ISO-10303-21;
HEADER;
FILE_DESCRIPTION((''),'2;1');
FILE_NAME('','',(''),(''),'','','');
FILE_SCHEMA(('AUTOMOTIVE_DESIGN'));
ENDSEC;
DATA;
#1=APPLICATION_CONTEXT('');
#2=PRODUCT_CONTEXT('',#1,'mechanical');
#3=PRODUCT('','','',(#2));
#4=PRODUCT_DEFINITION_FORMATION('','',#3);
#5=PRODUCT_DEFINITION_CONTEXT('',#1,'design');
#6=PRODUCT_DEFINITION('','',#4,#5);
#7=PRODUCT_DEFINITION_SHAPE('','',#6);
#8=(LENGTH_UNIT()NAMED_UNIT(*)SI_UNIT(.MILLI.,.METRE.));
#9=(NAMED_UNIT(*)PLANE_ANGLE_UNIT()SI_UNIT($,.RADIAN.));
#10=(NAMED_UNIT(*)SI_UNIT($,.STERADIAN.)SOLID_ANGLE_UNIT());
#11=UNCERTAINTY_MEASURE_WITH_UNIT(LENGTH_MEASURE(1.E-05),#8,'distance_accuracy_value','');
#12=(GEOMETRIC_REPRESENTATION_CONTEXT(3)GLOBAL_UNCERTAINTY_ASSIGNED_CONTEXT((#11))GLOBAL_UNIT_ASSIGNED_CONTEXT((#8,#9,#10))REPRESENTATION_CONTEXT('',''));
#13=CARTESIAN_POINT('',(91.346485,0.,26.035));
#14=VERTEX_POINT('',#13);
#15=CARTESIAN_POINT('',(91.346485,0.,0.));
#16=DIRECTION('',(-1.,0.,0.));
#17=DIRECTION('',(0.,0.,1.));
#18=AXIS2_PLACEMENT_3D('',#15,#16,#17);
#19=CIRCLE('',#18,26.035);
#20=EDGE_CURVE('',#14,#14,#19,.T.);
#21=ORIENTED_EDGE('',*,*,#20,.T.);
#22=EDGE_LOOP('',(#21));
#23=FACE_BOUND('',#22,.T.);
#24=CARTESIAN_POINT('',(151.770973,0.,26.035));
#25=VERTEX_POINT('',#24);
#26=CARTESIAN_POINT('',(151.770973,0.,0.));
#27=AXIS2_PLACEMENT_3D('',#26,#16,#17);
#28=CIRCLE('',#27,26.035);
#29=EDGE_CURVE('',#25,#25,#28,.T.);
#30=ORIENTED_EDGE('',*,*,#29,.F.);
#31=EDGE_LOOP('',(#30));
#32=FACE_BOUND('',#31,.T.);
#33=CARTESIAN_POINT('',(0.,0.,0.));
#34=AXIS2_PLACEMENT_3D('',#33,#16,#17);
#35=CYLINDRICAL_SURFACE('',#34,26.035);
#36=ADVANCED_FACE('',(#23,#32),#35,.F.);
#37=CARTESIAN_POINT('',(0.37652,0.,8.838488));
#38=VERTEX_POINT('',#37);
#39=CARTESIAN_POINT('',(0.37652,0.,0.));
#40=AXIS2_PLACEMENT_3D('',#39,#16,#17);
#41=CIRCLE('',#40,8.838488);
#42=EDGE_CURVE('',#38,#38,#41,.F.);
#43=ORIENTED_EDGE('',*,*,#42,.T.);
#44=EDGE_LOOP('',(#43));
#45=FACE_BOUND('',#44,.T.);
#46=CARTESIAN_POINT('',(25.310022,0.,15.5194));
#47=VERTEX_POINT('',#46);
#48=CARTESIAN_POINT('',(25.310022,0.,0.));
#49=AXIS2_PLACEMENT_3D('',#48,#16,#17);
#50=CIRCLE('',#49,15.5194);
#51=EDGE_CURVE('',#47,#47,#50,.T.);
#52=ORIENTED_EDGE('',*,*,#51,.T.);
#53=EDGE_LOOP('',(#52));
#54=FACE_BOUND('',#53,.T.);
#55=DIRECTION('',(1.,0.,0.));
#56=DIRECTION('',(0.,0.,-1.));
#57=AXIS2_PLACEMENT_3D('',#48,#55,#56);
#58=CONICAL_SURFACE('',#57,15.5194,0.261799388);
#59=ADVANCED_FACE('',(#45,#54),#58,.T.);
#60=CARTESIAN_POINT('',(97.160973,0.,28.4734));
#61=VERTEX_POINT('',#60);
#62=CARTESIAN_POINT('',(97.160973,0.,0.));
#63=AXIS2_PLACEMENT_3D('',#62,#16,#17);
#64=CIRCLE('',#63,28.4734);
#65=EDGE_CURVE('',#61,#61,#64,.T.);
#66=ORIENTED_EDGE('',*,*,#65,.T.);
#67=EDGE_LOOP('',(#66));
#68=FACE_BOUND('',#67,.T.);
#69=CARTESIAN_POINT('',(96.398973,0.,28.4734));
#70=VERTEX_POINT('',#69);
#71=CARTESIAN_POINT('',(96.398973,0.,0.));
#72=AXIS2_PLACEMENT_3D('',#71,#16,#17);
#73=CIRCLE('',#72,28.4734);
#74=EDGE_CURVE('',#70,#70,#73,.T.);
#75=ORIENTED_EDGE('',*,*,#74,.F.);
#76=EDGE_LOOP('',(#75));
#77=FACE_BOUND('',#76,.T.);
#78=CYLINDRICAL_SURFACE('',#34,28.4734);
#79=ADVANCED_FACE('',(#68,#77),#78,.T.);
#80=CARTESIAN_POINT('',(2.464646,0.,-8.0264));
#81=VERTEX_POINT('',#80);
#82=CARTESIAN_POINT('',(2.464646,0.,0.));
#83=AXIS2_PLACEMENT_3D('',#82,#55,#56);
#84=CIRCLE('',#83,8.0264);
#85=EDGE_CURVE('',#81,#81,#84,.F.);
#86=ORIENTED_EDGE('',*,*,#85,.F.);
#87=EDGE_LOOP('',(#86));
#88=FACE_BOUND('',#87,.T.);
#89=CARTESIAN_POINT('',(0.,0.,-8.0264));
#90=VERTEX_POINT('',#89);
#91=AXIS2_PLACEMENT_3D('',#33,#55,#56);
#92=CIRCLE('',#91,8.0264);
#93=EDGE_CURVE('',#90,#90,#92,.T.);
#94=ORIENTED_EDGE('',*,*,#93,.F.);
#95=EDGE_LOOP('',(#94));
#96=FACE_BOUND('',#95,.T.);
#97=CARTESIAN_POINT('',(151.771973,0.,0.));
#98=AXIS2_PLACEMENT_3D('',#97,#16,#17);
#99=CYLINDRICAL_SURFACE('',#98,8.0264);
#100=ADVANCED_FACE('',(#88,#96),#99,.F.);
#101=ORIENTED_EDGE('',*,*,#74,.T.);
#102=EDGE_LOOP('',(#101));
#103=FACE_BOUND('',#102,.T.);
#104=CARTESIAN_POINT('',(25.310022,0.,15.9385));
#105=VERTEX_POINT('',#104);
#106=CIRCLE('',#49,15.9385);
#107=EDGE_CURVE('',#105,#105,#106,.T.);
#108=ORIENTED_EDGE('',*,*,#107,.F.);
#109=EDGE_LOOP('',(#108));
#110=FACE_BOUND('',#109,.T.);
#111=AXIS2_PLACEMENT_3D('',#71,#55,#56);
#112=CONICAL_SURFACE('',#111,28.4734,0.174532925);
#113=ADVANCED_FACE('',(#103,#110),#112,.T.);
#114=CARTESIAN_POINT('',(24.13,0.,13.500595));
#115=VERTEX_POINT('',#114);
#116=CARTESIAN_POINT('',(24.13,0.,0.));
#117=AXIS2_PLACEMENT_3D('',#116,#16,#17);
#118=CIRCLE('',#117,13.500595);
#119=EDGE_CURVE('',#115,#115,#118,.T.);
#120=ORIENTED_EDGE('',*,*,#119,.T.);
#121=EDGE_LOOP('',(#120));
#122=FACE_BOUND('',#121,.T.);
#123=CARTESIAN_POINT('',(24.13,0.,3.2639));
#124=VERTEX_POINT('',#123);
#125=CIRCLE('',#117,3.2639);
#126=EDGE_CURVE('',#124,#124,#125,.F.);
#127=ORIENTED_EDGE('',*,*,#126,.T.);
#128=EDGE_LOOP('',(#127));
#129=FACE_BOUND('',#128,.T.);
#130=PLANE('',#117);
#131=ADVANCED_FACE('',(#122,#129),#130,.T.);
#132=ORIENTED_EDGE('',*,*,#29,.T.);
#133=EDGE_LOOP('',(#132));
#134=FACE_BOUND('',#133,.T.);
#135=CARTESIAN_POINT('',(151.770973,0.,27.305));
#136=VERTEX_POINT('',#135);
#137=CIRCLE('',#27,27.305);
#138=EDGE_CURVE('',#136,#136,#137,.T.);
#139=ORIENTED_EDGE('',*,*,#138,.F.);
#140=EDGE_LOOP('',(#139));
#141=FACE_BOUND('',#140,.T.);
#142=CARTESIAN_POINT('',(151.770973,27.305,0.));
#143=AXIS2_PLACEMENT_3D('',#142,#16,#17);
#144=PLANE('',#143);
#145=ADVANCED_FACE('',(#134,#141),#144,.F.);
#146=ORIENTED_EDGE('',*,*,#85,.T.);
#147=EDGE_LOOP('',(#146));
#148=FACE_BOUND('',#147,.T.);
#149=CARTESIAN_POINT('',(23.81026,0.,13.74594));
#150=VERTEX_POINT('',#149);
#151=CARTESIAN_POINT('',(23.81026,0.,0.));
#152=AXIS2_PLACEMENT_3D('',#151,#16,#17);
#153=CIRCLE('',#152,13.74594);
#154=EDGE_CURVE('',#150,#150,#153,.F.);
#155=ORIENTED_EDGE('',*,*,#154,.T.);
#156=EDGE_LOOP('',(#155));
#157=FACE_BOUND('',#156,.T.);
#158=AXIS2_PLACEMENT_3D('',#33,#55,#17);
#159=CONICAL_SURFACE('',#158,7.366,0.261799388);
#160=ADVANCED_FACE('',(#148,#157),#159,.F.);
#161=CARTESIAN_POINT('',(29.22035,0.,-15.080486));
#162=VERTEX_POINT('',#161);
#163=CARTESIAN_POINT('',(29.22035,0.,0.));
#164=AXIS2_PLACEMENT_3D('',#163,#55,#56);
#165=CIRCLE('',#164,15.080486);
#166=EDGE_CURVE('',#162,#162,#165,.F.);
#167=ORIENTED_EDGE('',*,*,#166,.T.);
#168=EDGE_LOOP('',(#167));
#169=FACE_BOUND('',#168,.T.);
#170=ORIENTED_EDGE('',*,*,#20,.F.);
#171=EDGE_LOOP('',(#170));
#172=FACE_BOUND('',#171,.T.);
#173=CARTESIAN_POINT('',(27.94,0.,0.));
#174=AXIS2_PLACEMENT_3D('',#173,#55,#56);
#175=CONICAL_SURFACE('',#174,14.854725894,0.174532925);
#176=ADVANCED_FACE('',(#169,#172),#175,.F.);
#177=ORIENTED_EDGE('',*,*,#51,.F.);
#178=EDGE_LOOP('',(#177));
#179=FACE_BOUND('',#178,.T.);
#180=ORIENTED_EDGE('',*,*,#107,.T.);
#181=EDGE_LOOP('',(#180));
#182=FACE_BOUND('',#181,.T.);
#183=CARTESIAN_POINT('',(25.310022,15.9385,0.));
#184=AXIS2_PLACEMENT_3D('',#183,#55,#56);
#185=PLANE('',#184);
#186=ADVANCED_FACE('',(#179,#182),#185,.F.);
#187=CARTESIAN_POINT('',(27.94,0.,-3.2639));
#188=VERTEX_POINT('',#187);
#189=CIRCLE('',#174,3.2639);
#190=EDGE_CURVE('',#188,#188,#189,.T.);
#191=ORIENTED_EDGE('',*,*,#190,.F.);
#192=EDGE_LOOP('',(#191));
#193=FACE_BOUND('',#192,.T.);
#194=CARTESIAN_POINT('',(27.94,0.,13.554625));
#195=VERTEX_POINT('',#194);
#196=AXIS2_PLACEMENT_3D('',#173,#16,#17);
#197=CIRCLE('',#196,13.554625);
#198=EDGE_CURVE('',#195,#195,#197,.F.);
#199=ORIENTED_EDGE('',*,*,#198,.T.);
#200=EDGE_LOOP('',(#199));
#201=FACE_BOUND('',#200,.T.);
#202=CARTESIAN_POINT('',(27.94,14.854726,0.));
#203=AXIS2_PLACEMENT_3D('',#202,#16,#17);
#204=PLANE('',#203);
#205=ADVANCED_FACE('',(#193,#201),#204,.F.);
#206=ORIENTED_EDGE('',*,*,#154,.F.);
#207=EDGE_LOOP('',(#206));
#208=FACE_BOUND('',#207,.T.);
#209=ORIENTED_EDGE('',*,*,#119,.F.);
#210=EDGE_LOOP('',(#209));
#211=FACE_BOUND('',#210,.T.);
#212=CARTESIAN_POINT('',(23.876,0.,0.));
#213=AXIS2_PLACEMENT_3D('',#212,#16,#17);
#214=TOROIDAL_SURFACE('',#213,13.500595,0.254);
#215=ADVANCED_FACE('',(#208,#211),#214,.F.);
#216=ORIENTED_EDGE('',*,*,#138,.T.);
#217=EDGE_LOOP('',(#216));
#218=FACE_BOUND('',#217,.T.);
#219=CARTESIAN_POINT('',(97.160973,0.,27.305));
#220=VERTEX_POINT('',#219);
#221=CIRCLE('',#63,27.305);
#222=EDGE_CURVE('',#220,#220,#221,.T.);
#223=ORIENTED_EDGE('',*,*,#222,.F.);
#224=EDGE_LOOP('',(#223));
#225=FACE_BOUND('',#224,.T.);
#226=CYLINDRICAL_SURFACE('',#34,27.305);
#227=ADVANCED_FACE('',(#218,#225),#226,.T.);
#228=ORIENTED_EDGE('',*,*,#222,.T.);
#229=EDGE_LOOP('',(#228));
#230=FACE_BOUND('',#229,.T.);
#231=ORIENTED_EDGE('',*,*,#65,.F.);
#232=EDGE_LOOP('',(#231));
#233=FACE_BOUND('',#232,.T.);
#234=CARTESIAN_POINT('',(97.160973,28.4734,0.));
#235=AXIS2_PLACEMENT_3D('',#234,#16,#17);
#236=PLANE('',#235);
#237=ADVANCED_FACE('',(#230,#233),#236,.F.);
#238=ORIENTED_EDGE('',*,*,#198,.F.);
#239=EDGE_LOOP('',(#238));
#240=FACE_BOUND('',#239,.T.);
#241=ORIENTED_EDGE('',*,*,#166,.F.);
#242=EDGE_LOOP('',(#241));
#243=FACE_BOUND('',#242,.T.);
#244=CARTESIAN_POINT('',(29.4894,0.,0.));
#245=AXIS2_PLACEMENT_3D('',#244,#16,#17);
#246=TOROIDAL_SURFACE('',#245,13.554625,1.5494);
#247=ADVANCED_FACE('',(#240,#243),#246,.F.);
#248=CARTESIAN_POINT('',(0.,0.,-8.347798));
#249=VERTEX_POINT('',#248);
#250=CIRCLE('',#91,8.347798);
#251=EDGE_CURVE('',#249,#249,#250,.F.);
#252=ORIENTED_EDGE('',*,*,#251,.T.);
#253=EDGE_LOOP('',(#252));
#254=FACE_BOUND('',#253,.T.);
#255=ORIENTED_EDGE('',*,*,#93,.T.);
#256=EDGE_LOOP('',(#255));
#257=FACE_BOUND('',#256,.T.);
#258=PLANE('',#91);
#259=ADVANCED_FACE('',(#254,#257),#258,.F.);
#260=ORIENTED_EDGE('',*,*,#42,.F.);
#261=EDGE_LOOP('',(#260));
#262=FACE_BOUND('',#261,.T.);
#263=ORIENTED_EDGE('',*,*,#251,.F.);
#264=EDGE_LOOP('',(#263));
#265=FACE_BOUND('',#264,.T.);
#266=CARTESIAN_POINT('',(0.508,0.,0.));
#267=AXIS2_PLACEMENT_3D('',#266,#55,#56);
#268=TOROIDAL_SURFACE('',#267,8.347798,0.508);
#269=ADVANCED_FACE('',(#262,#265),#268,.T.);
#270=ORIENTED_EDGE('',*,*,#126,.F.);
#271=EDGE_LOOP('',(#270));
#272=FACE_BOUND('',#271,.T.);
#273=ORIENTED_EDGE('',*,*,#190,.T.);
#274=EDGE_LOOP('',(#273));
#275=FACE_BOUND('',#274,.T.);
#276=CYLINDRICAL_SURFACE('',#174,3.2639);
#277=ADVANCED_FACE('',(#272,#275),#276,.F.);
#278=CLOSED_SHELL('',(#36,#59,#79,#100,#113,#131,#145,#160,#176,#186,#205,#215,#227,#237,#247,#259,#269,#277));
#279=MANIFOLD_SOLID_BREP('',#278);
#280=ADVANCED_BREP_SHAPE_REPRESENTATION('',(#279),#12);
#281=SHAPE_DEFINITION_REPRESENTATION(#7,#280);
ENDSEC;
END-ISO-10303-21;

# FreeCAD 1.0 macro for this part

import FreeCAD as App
import Part
import Sketcher

V = App.Vector
Q = App.Units.Quantity


def edges_at(feature, points):
    """Names of the edges that pass closest to the given points."""
    edges = feature.Shape.Edges
    near = lambda p: min(range(len(edges)), key=lambda i: edges[i].distToShape(Part.Vertex(*p))[0])
    return sorted({f"Edge{near(p) + 1}" for p in points})

doc = App.newDocument("Part")
body = doc.addObject("PartDesign::Body", "Body")

# Sketch on XY plane
sketch1 = doc.addObject("Sketcher::SketchObject", "Sketch")
body.addObject(sketch1)
sketch1.AttachmentSupport = (doc.XY_Plane, [""])
sketch1.MapMode = "FlatFace"
sketch1.addGeometry([
    Part.LineSegment(V(96.398973, 28.4734, 0), V(25.310022, 15.9385, 0)),  # 0
    Part.LineSegment(V(25.310022, 15.9385, 0), V(25.310022, 15.5194, 0)),  # 1
    Part.LineSegment(V(25.310022, 15.5194, 0), V(0, 8.7376, 0)),  # 2
    Part.LineSegment(V(0, 8.7376, 0), V(0, 0, 0)),  # 3
    Part.LineSegment(V(0, 0, 0), V(27.94, 0, 0)),  # 4
    Part.LineSegment(V(27.94, 0, 0), V(27.94, 14.854726, 0)),  # 5
    Part.LineSegment(V(27.94, 14.854726, 0), V(91.346485, 26.035, 0)),  # 6
    Part.LineSegment(V(91.346485, 26.035, 0), V(151.770973, 26.035, 0)),  # 7
    Part.LineSegment(V(151.770973, 26.035, 0), V(151.770973, 27.305, 0)),  # 8
    Part.LineSegment(V(151.770973, 27.305, 0), V(97.160973, 27.305, 0)),  # 9
    Part.LineSegment(V(97.160973, 27.305, 0), V(97.160973, 28.4734, 0)),  # 10
    Part.LineSegment(V(97.160973, 28.4734, 0), V(96.398973, 28.4734, 0)),  # 11
], False)
sketch1.addConstraint([
    Sketcher.Constraint("Coincident", 0, 2, 1, 1),
    Sketcher.Constraint("Coincident", 1, 2, 2, 1),
    Sketcher.Constraint("Coincident", 2, 2, 3, 1),
    Sketcher.Constraint("Coincident", 3, 2, 4, 1),
    Sketcher.Constraint("Coincident", 4, 2, 5, 1),
    Sketcher.Constraint("Coincident", 5, 2, 6, 1),
    Sketcher.Constraint("Coincident", 6, 2, 7, 1),
    Sketcher.Constraint("Coincident", 7, 2, 8, 1),
    Sketcher.Constraint("Coincident", 8, 2, 9, 1),
    Sketcher.Constraint("Coincident", 9, 2, 10, 1),
    Sketcher.Constraint("Coincident", 10, 2, 11, 1),
    Sketcher.Constraint("Coincident", 11, 2, 0, 1),
    Sketcher.Constraint("Vertical", 1),
    Sketcher.Constraint("Vertical", 3),
    Sketcher.Constraint("Horizontal", 4),
    Sketcher.Constraint("Vertical", 5),
    Sketcher.Constraint("Horizontal", 7),
    Sketcher.Constraint("Vertical", 8),
    Sketcher.Constraint("Horizontal", 9),
    Sketcher.Constraint("Vertical", 10),
    Sketcher.Constraint("Horizontal", 11),
    Sketcher.Constraint("Coincident", 3, 2, -1, 1),
    Sketcher.Constraint("Parallel", 0, 6),
    Sketcher.Constraint("DistanceX", 4, 1, 4, 2, Q("1.1 in")),
    Sketcher.Constraint("Angle", 0, Q("-170 deg")),
    Sketcher.Constraint("Angle", 2, Q("-165 deg")),
    Sketcher.Constraint("DistanceX", 9, 2, 9, 1, Q("2.15 in")),
    Sketcher.Constraint("DistanceX", 11, 2, 11, 1, Q("0.03 in")),
    Sketcher.Constraint("DistanceY", 8, 1, 8, 2, Q("0.05 in")),
    Sketcher.Constraint("DistanceY", 3, 2, 3, 1, Q("0.344 in")),
    Sketcher.Constraint("DistanceY", 10, 1, 10, 2, Q("0.046 in")),
    Sketcher.Constraint("DistanceY", 1, 2, 1, 1, Q("0.0165 in")),
    Sketcher.Constraint("DistanceY", -1, 1, 1, 2, Q("0.611 in")),
    Sketcher.Constraint("DistanceY", -1, 1, 6, 2, Q("1.025 in")),
    Sketcher.Constraint("DistanceX", 7, 1, 7, 2, Q("60.424487 mm")),
])
revolution = doc.addObject("PartDesign::Revolution", "Revolution")
body.addObject(revolution)
revolution.Profile = sketch1
revolution.ReferenceAxis = (sketch1, ["H_Axis"])
revolution.Angle = 360
doc.recompute()

fillet = doc.addObject("PartDesign::Fillet", "Fillet")
body.addObject(fillet)
fillet.Base = (revolution, edges_at(revolution, [(27.94, -14.855, 0)]))
fillet.Radius = Q("0.061 in")

# Sketch on YZ plane
sketch2 = doc.addObject("Sketcher::SketchObject", "Sketch001")
body.addObject(sketch2)
sketch2.AttachmentSupport = (doc.YZ_Plane, [""])
sketch2.MapMode = "FlatFace"
sketch2.AttachmentOffset = App.Placement(V(0, 0, 1.1 * 25.4), App.Rotation())
sketch2.addGeometry(Part.Circle(V(0, 0, 0), V(0, 0, 1), 3.2639), False)
sketch2.addConstraint([
    Sketcher.Constraint("Coincident", 0, 3, -1, 1),
    Sketcher.Constraint("Diameter", 0, Q("0.257 in")),
])
doc.recompute()
hole = doc.addObject("PartDesign::Hole", "Hole")
body.addObject(hole)
hole.Profile = sketch2
hole.ThreadType = "None"
hole.Diameter = Q("0.257 in")
hole.DepthType = "Dimension"
hole.Depth = 13.913851
hole.DrillPoint = "Angled"
hole.DrillPointAngle = 118
doc.recompute()

fillet2 = doc.addObject("PartDesign::Fillet", "Fillet001")
body.addObject(fillet2)
fillet2.Base = (hole, edges_at(hole, [(0, -8.738, 0)]))
fillet2.Radius = Q("0.02 in")

# Sketch on YZ plane
sketch3 = doc.addObject("Sketcher::SketchObject", "Sketch002")
body.addObject(sketch3)
sketch3.AttachmentSupport = (doc.YZ_Plane, [""])
sketch3.MapMode = "FlatFace"
sketch3.addGeometry(Part.Circle(V(0, 0, 0), V(0, 0, 1), 7.366), False)
sketch3.addConstraint([
    Sketcher.Constraint("Coincident", 0, 3, -1, 1),
    Sketcher.Constraint("Diameter", 0, Q("0.58 in")),
])
pocket1 = doc.addObject("PartDesign::Pocket", "Pocket")
body.addObject(pocket1)
pocket1.Profile = sketch3
pocket1.Length = Q("0.95 in")
pocket1.Reversed = True
pocket1.TaperAngle = 15
doc.recompute()

fillet3 = doc.addObject("PartDesign::Fillet", "Fillet002")
body.addObject(fillet3)
fillet3.Base = (pocket1, edges_at(pocket1, [(24.13, 0, -13.832)]))
fillet3.Radius = Q("0.01 in")

# Sketch on YZ plane
sketch4 = doc.addObject("Sketcher::SketchObject", "Sketch003")
body.addObject(sketch4)
sketch4.AttachmentSupport = (doc.YZ_Plane, [""])
sketch4.MapMode = "FlatFace"
sketch4.addGeometry(Part.Circle(V(0, 0, 0), V(0, 0, 1), 8.0264), False)
sketch4.addConstraint([
    Sketcher.Constraint("Coincident", 0, 3, -1, 1),
    Sketcher.Constraint("Diameter", 0, Q("0.632 in")),
])
pocket2 = doc.addObject("PartDesign::Pocket", "Pocket001")
body.addObject(pocket2)
pocket2.Profile = sketch4
pocket2.Length = 2.464646
pocket2.Reversed = True

doc.recompute()
